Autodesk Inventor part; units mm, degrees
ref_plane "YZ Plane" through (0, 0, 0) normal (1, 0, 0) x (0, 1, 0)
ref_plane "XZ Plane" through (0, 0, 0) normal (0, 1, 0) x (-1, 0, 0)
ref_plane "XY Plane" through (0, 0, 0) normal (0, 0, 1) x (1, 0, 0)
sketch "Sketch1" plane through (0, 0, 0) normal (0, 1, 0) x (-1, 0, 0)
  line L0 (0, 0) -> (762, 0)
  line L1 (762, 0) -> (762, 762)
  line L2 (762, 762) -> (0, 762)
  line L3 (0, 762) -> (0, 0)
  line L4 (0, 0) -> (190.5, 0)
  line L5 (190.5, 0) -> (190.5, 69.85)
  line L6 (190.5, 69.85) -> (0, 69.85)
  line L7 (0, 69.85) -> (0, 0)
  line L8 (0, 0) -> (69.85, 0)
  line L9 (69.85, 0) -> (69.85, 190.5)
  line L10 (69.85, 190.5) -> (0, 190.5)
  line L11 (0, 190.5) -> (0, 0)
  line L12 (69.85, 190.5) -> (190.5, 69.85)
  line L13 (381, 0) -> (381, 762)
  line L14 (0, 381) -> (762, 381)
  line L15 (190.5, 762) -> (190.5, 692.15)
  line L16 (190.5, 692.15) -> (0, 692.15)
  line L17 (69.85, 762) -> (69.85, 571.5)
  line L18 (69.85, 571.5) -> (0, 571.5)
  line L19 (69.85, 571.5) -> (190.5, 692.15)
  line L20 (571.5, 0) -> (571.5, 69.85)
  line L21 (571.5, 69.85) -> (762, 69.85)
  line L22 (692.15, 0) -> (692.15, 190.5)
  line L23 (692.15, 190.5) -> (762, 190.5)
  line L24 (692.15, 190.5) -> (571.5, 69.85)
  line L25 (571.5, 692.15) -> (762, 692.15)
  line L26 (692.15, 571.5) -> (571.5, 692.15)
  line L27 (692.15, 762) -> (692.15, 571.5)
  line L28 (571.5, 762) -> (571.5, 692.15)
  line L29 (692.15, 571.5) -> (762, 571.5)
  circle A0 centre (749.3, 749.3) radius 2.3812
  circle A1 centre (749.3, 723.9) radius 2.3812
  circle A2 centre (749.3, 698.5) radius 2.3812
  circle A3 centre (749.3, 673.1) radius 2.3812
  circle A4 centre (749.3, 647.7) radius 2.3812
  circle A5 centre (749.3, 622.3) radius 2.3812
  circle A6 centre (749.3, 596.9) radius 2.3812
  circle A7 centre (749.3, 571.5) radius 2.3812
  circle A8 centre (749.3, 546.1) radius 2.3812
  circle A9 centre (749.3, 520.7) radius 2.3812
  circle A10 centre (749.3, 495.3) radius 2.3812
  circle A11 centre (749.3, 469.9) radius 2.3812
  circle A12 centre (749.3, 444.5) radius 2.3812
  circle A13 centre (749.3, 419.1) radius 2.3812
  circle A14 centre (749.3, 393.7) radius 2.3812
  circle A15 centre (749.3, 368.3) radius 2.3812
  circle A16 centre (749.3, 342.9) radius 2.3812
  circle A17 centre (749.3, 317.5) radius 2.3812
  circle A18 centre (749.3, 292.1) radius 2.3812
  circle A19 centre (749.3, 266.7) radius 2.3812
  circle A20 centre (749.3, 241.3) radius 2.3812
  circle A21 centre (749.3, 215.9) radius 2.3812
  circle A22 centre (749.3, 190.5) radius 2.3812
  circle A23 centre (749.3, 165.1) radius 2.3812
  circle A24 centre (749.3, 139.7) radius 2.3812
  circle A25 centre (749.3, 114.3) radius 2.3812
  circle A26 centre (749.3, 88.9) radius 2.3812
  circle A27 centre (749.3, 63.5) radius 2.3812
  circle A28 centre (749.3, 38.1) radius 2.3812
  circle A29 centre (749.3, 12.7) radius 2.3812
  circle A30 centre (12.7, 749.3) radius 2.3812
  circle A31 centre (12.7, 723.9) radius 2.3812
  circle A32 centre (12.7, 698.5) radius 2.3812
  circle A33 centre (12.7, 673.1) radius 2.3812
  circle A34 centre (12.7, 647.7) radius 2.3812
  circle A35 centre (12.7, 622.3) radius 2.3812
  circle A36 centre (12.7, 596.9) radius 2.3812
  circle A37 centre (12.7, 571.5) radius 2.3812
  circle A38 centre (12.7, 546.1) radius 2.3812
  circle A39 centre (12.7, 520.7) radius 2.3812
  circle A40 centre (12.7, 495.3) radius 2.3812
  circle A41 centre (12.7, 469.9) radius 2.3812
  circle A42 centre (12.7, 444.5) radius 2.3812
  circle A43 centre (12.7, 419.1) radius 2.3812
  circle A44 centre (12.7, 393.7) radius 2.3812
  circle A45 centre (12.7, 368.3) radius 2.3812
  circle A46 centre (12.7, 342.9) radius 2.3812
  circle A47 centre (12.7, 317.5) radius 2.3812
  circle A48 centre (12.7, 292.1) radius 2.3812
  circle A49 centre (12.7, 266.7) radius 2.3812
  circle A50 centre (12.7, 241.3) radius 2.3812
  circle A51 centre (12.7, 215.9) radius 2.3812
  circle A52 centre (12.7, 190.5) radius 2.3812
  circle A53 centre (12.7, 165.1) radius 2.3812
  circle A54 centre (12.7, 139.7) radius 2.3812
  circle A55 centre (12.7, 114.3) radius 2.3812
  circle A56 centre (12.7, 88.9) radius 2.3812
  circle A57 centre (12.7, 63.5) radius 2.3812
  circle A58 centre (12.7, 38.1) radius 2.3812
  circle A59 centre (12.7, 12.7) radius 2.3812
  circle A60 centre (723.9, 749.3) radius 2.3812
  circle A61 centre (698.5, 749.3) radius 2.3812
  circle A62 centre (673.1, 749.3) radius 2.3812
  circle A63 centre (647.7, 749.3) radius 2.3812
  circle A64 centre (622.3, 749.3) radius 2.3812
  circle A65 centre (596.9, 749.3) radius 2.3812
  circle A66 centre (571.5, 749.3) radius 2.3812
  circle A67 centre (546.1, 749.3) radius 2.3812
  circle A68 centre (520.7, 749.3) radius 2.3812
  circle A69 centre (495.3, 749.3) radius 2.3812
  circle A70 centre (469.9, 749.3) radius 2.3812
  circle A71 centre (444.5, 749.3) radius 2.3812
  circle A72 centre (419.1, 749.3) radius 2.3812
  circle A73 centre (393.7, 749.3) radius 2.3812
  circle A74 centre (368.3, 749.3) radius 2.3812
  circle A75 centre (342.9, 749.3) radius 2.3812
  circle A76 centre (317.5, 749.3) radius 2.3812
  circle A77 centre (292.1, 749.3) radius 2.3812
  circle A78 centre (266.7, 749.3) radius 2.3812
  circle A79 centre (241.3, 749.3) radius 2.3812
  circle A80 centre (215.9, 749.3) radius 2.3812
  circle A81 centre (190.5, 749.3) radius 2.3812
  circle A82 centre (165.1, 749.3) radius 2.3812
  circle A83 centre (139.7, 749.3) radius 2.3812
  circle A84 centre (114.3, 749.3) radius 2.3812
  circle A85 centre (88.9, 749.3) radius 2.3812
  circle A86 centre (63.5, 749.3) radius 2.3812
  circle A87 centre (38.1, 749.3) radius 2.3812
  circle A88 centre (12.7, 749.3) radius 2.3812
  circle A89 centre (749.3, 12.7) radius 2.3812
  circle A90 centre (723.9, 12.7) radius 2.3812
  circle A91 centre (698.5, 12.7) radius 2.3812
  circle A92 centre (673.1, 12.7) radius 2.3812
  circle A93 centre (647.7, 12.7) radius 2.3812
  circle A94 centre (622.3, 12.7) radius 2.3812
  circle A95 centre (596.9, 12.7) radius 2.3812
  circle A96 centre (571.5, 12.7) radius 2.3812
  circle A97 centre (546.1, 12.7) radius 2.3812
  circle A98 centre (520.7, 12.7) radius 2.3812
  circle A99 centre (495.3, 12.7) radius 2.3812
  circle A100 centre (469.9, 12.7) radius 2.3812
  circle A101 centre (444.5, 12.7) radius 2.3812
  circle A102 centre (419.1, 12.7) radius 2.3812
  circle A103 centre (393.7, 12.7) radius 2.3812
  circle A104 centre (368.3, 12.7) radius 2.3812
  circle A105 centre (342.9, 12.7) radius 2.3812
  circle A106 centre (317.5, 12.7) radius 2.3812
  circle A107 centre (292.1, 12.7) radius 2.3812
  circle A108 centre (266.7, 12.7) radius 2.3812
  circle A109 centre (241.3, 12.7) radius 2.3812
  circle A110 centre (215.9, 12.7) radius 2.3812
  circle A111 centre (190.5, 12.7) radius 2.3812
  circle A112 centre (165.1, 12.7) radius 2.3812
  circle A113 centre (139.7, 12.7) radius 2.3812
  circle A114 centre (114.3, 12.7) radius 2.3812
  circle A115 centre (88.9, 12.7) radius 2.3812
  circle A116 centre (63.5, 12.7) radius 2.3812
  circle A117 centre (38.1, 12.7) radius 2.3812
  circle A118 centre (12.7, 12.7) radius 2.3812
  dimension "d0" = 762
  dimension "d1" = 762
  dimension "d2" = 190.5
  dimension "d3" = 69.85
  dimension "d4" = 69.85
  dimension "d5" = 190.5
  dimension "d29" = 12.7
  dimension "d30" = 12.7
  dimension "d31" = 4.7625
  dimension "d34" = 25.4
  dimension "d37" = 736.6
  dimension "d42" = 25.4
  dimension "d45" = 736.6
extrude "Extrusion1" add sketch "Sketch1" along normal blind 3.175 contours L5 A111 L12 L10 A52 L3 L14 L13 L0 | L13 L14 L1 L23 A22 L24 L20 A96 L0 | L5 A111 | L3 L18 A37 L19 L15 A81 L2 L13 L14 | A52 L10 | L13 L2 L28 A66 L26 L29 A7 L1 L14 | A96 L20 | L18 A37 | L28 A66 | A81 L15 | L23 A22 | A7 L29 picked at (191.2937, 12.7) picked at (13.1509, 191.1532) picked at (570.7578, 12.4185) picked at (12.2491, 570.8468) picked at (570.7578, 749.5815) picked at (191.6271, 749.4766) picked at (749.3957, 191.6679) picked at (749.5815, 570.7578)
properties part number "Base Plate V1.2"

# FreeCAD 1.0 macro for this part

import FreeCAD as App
import Part
import Sketcher
Q = App.Units.Quantity

doc = App.newDocument("Part")
params = doc.addObject("Spreadsheet::Sheet", "Params")
for row, (alias, value) in enumerate([
    ("sketch1_diameter", "0.1875 in"),
    ("sketch1_width", "2.75 in"),
    ("pad1_length", "0.125 in"),
], start=1):
    params.set(f"A{row}", alias)
    params.set(f"B{row}", "=" + value)
    params.setAlias(f"B{row}", alias)

body = doc.addObject("PartDesign::Body", "Body")

sketch1 = body.newObject("Sketcher::SketchObject", "Sketch")
sketch1.AttachmentSupport = (doc.getObject("XZ_Plane"), [""])
sketch1.MapMode = "FlatFace"
sketch1.addGeometry([
    Part.LineSegment(App.Vector(-190.5, 0, 0), App.Vector(-571.5, 0, 0)),
    Part.LineSegment(App.Vector(-571.5, 0, 0), App.Vector(-571.5, 69.85, 0)),
    Part.LineSegment(App.Vector(-571.5, 69.85, 0), App.Vector(-692.15, 190.5, 0)),
    Part.LineSegment(App.Vector(-692.15, 190.5, 0), App.Vector(-762, 190.5, 0)),
    Part.LineSegment(App.Vector(-762, 190.5, 0), App.Vector(-762, 571.5, 0)),
    Part.LineSegment(App.Vector(-762, 571.5, 0), App.Vector(-692.15, 571.5, 0)),
    Part.LineSegment(App.Vector(-692.15, 571.5, 0), App.Vector(-571.5, 692.15, 0)),
    Part.LineSegment(App.Vector(-571.5, 692.15, 0), App.Vector(-571.5, 762, 0)),
    Part.LineSegment(App.Vector(-571.5, 762, 0), App.Vector(-190.5, 762, 0)),
    Part.LineSegment(App.Vector(-190.5, 762, 0), App.Vector(-190.5, 692.15, 0)),
    Part.LineSegment(App.Vector(-190.5, 692.15, 0), App.Vector(-69.85, 571.5, 0)),
    Part.LineSegment(App.Vector(-69.85, 571.5, 0), App.Vector(0, 571.5, 0)),
    Part.LineSegment(App.Vector(0, 571.5, 0), App.Vector(0, 190.5, 0)),
    Part.LineSegment(App.Vector(0, 190.5, 0), App.Vector(-69.85, 190.5, 0)),
    Part.LineSegment(App.Vector(-69.85, 190.5, 0), App.Vector(-190.5, 69.85, 0)),
    Part.LineSegment(App.Vector(-190.5, 69.85, 0), App.Vector(-190.5, 0, 0)),
    Part.Circle(App.Vector(-215.9, 12.7, 0), App.Vector(0, 0, 1), 2.3812),
    Part.Circle(App.Vector(-241.3, 12.7, 0), App.Vector(0, 0, 1), 2.3812),
    Part.Circle(App.Vector(-266.7, 12.7, 0), App.Vector(0, 0, 1), 2.3812),
    Part.Circle(App.Vector(-292.1, 12.7, 0), App.Vector(0, 0, 1), 2.3812),
    Part.Circle(App.Vector(-317.5, 12.7, 0), App.Vector(0, 0, 1), 2.3812),
    Part.Circle(App.Vector(-342.9, 12.7, 0), App.Vector(0, 0, 1), 2.3812),
    Part.Circle(App.Vector(-368.3, 12.7, 0), App.Vector(0, 0, 1), 2.3812),
    Part.Circle(App.Vector(-12.7, 215.9, 0), App.Vector(0, 0, 1), 2.3812),
    Part.Circle(App.Vector(-12.7, 241.3, 0), App.Vector(0, 0, 1), 2.3812),
    Part.Circle(App.Vector(-12.7, 266.7, 0), App.Vector(0, 0, 1), 2.3812),
    Part.Circle(App.Vector(-12.7, 292.1, 0), App.Vector(0, 0, 1), 2.3812),
    Part.Circle(App.Vector(-12.7, 317.5, 0), App.Vector(0, 0, 1), 2.3812),
    Part.Circle(App.Vector(-12.7, 342.9, 0), App.Vector(0, 0, 1), 2.3812),
    Part.Circle(App.Vector(-12.7, 368.3, 0), App.Vector(0, 0, 1), 2.3812),
    Part.Circle(App.Vector(-368.3, 749.3, 0), App.Vector(0, 0, 1), 2.3812),
    Part.Circle(App.Vector(-12.7, 393.7, 0), App.Vector(0, 0, 1), 2.3812),
    Part.Circle(App.Vector(-12.7, 419.1, 0), App.Vector(0, 0, 1), 2.3812),
    Part.Circle(App.Vector(-12.7, 444.5, 0), App.Vector(0, 0, 1), 2.3812),
    Part.Circle(App.Vector(-12.7, 469.9, 0), App.Vector(0, 0, 1), 2.3812),
    Part.Circle(App.Vector(-12.7, 495.3, 0), App.Vector(0, 0, 1), 2.3812),
    Part.Circle(App.Vector(-12.7, 520.7, 0), App.Vector(0, 0, 1), 2.3812),
    Part.Circle(App.Vector(-12.7, 546.1, 0), App.Vector(0, 0, 1), 2.3812),
    Part.Circle(App.Vector(-215.9, 749.3, 0), App.Vector(0, 0, 1), 2.3812),
    Part.Circle(App.Vector(-241.3, 749.3, 0), App.Vector(0, 0, 1), 2.3812),
    Part.Circle(App.Vector(-266.7, 749.3, 0), App.Vector(0, 0, 1), 2.3812),
    Part.Circle(App.Vector(-292.1, 749.3, 0), App.Vector(0, 0, 1), 2.3812),
    Part.Circle(App.Vector(-317.5, 749.3, 0), App.Vector(0, 0, 1), 2.3812),
    Part.Circle(App.Vector(-342.9, 749.3, 0), App.Vector(0, 0, 1), 2.3812),
    Part.Circle(App.Vector(-749.3, 368.3, 0), App.Vector(0, 0, 1), 2.3812),
    Part.Circle(App.Vector(-393.7, 12.7, 0), App.Vector(0, 0, 1), 2.3812),
    Part.Circle(App.Vector(-419.1, 12.7, 0), App.Vector(0, 0, 1), 2.3812),
    Part.Circle(App.Vector(-444.5, 12.7, 0), App.Vector(0, 0, 1), 2.3812),
    Part.Circle(App.Vector(-469.9, 12.7, 0), App.Vector(0, 0, 1), 2.3812),
    Part.Circle(App.Vector(-495.3, 12.7, 0), App.Vector(0, 0, 1), 2.3812),
    Part.Circle(App.Vector(-520.7, 12.7, 0), App.Vector(0, 0, 1), 2.3812),
    Part.Circle(App.Vector(-546.1, 12.7, 0), App.Vector(0, 0, 1), 2.3812),
    Part.Circle(App.Vector(-749.3, 215.9, 0), App.Vector(0, 0, 1), 2.3812),
    Part.Circle(App.Vector(-749.3, 241.3, 0), App.Vector(0, 0, 1), 2.3812),
    Part.Circle(App.Vector(-749.3, 266.7, 0), App.Vector(0, 0, 1), 2.3812),
    Part.Circle(App.Vector(-749.3, 292.1, 0), App.Vector(0, 0, 1), 2.3812),
    Part.Circle(App.Vector(-749.3, 317.5, 0), App.Vector(0, 0, 1), 2.3812),
    Part.Circle(App.Vector(-749.3, 342.9, 0), App.Vector(0, 0, 1), 2.3812),
    Part.Circle(App.Vector(-546.1, 749.3, 0), App.Vector(0, 0, 1), 2.3812),
    Part.Circle(App.Vector(-520.7, 749.3, 0), App.Vector(0, 0, 1), 2.3812),
    Part.Circle(App.Vector(-749.3, 393.7, 0), App.Vector(0, 0, 1), 2.3812),
    Part.Circle(App.Vector(-749.3, 419.1, 0), App.Vector(0, 0, 1), 2.3812),
    Part.Circle(App.Vector(-749.3, 444.5, 0), App.Vector(0, 0, 1), 2.3812),
    Part.Circle(App.Vector(-749.3, 469.9, 0), App.Vector(0, 0, 1), 2.3812),
    Part.Circle(App.Vector(-749.3, 495.3, 0), App.Vector(0, 0, 1), 2.3812),
    Part.Circle(App.Vector(-749.3, 520.7, 0), App.Vector(0, 0, 1), 2.3812),
    Part.Circle(App.Vector(-749.3, 546.1, 0), App.Vector(0, 0, 1), 2.3812),
    Part.Circle(App.Vector(-393.7, 749.3, 0), App.Vector(0, 0, 1), 2.3812),
    Part.Circle(App.Vector(-419.1, 749.3, 0), App.Vector(0, 0, 1), 2.3812),
    Part.Circle(App.Vector(-444.5, 749.3, 0), App.Vector(0, 0, 1), 2.3812),
    Part.Circle(App.Vector(-469.9, 749.3, 0), App.Vector(0, 0, 1), 2.3812),
    Part.Circle(App.Vector(-495.3, 749.3, 0), App.Vector(0, 0, 1), 2.3812),
], False)
sketch1.addConstraint([
    Sketcher.Constraint("Coincident", 0, 2, 1, 1),
    Sketcher.Constraint("Coincident", 1, 2, 2, 1),
    Sketcher.Constraint("Coincident", 2, 2, 3, 1),
    Sketcher.Constraint("Coincident", 3, 2, 4, 1),
    Sketcher.Constraint("Coincident", 4, 2, 5, 1),
    Sketcher.Constraint("Coincident", 5, 2, 6, 1),
    Sketcher.Constraint("Coincident", 6, 2, 7, 1),
    Sketcher.Constraint("Coincident", 7, 2, 8, 1),
    Sketcher.Constraint("Coincident", 8, 2, 9, 1),
    Sketcher.Constraint("Coincident", 9, 2, 10, 1),
    Sketcher.Constraint("Coincident", 10, 2, 11, 1),
    Sketcher.Constraint("Coincident", 11, 2, 12, 1),
    Sketcher.Constraint("Coincident", 12, 2, 13, 1),
    Sketcher.Constraint("Coincident", 13, 2, 14, 1),
    Sketcher.Constraint("Coincident", 14, 2, 15, 1),
    Sketcher.Constraint("Coincident", 15, 2, 0, 1),
    Sketcher.Constraint("Horizontal", 0),
    Sketcher.Constraint("Vertical", 1),
    Sketcher.Constraint("Horizontal", 3),
    Sketcher.Constraint("Vertical", 4),
    Sketcher.Constraint("Horizontal", 5),
    Sketcher.Constraint("Vertical", 7),
    Sketcher.Constraint("Horizontal", 8),
    Sketcher.Constraint("Vertical", 9),
    Sketcher.Constraint("Horizontal", 11),
    Sketcher.Constraint("Vertical", 12),
    Sketcher.Constraint("Horizontal", 13),
    Sketcher.Constraint("Vertical", 15),
    Sketcher.Constraint("Equal", 16, 17),
    Sketcher.Constraint("Equal", 17, 18),
    Sketcher.Constraint("Equal", 18, 19),
    Sketcher.Constraint("Equal", 19, 20),
    Sketcher.Constraint("Equal", 20, 21),
    Sketcher.Constraint("Equal", 21, 22),
    Sketcher.Constraint("Equal", 22, 23),
    Sketcher.Constraint("Equal", 23, 24),
    Sketcher.Constraint("Equal", 24, 25),
    Sketcher.Constraint("Equal", 25, 26),
    Sketcher.Constraint("Equal", 26, 27),
    Sketcher.Constraint("Equal", 27, 28),
    Sketcher.Constraint("Equal", 28, 29),
    Sketcher.Constraint("Equal", 29, 30),
    Sketcher.Constraint("Equal", 30, 31),
    Sketcher.Constraint("Equal", 31, 32),
    Sketcher.Constraint("Equal", 32, 33),
    Sketcher.Constraint("Equal", 33, 34),
    Sketcher.Constraint("Equal", 34, 35),
    Sketcher.Constraint("Equal", 35, 36),
    Sketcher.Constraint("Equal", 36, 37),
    Sketcher.Constraint("Equal", 37, 38),
    Sketcher.Constraint("Equal", 38, 39),
    Sketcher.Constraint("Equal", 39, 40),
    Sketcher.Constraint("Equal", 40, 41),
    Sketcher.Constraint("Equal", 41, 42),
    Sketcher.Constraint("Equal", 42, 43),
    Sketcher.Constraint("Equal", 43, 44),
    Sketcher.Constraint("Equal", 44, 45),
    Sketcher.Constraint("Equal", 45, 46),
    Sketcher.Constraint("Equal", 46, 47),
    Sketcher.Constraint("Equal", 47, 48),
    Sketcher.Constraint("Equal", 48, 49),
    Sketcher.Constraint("Equal", 49, 50),
    Sketcher.Constraint("Equal", 50, 51),
    Sketcher.Constraint("Equal", 51, 52),
    Sketcher.Constraint("Equal", 52, 53),
    Sketcher.Constraint("Equal", 53, 54),
    Sketcher.Constraint("Equal", 54, 55),
    Sketcher.Constraint("Equal", 55, 56),
    Sketcher.Constraint("Equal", 56, 57),
    Sketcher.Constraint("Equal", 57, 58),
    Sketcher.Constraint("Equal", 58, 59),
    Sketcher.Constraint("Equal", 59, 60),
    Sketcher.Constraint("Equal", 60, 61),
    Sketcher.Constraint("Equal", 61, 62),
    Sketcher.Constraint("Equal", 62, 63),
    Sketcher.Constraint("Equal", 63, 64),
    Sketcher.Constraint("Equal", 64, 65),
    Sketcher.Constraint("Equal", 65, 66),
    Sketcher.Constraint("Equal", 66, 67),
    Sketcher.Constraint("Equal", 67, 68),
    Sketcher.Constraint("Equal", 68, 69),
    Sketcher.Constraint("Equal", 69, 70),
    Sketcher.Constraint("Equal", 70, 71),
    Sketcher.Constraint("PointOnObject", 0, 2, -1),
    Sketcher.Constraint("PointOnObject", 11, 2, -2),
    Sketcher.Constraint("Perpendicular", 2, 6),
    Sketcher.Constraint("Perpendicular", 6, 10),
    Sketcher.Constraint("Perpendicular", 10, 14),
    Sketcher.Constraint("Horizontal", 16, 3, 17, 3),
    Sketcher.Constraint("Horizontal", 17, 3, 18, 3),
    Sketcher.Constraint("Horizontal", 18, 3, 19, 3),
    Sketcher.Constraint("Horizontal", 19, 3, 20, 3),
    Sketcher.Constraint("Horizontal", 20, 3, 21, 3),
    Sketcher.Constraint("Horizontal", 21, 3, 22, 3),
    Sketcher.Constraint("Horizontal", 30, 3, 38, 3),
    Sketcher.Constraint("Horizontal", 38, 3, 39, 3),
    Sketcher.Constraint("Horizontal", 39, 3, 40, 3),
    Sketcher.Constraint("Horizontal", 40, 3, 41, 3),
    Sketcher.Constraint("Horizontal", 41, 3, 42, 3),
    Sketcher.Constraint("Horizontal", 42, 3, 43, 3),
    Sketcher.Constraint("Horizontal", 29, 3, 44, 3),
    Sketcher.Constraint("Horizontal", 22, 3, 45, 3),
    Sketcher.Constraint("Horizontal", 45, 3, 46, 3),
    Sketcher.Constraint("Horizontal", 46, 3, 47, 3),
    Sketcher.Constraint("Horizontal", 47, 3, 48, 3),
    Sketcher.Constraint("Horizontal", 48, 3, 49, 3),
    Sketcher.Constraint("Horizontal", 49, 3, 50, 3),
    Sketcher.Constraint("Horizontal", 50, 3, 51, 3),
    Sketcher.Constraint("Horizontal", 23, 3, 52, 3),
    Sketcher.Constraint("Horizontal", 24, 3, 53, 3),
    Sketcher.Constraint("Horizontal", 25, 3, 54, 3),
    Sketcher.Constraint("Horizontal", 26, 3, 55, 3),
    Sketcher.Constraint("Horizontal", 27, 3, 56, 3),
    Sketcher.Constraint("Horizontal", 28, 3, 57, 3),
    Sketcher.Constraint("Horizontal", 43, 3, 58, 3),
    Sketcher.Constraint("Horizontal", 58, 3, 59, 3),
    Sketcher.Constraint("Horizontal", 31, 3, 60, 3),
    Sketcher.Constraint("Horizontal", 32, 3, 61, 3),
    Sketcher.Constraint("Horizontal", 33, 3, 62, 3),
    Sketcher.Constraint("Horizontal", 34, 3, 63, 3),
    Sketcher.Constraint("Horizontal", 35, 3, 64, 3),
    Sketcher.Constraint("Horizontal", 36, 3, 65, 3),
    Sketcher.Constraint("Horizontal", 37, 3, 66, 3),
    Sketcher.Constraint("Horizontal", 59, 3, 67, 3),
    Sketcher.Constraint("Horizontal", 67, 3, 68, 3),
    Sketcher.Constraint("Horizontal", 68, 3, 69, 3),
    Sketcher.Constraint("Horizontal", 69, 3, 70, 3),
    Sketcher.Constraint("Horizontal", 70, 3, 71, 3),
    Sketcher.Constraint("Horizontal", 6, 2, 9, 2),
    Sketcher.Constraint("Horizontal", 5, 2, 10, 2),
    Sketcher.Constraint("Horizontal", 3, 2, 12, 2),
    Sketcher.Constraint("Horizontal", 1, 2, 14, 2),
    Sketcher.Constraint("Vertical", 23, 3, 24, 3),
    Sketcher.Constraint("Vertical", 24, 3, 25, 3),
    Sketcher.Constraint("Vertical", 25, 3, 26, 3),
    Sketcher.Constraint("Vertical", 26, 3, 27, 3),
    Sketcher.Constraint("Vertical", 27, 3, 28, 3),
    Sketcher.Constraint("Vertical", 28, 3, 29, 3),
    Sketcher.Constraint("Vertical", 22, 3, 30, 3),
    Sketcher.Constraint("Vertical", 29, 3, 31, 3),
    Sketcher.Constraint("Vertical", 31, 3, 32, 3),
    Sketcher.Constraint("Vertical", 32, 3, 33, 3),
    Sketcher.Constraint("Vertical", 33, 3, 34, 3),
    Sketcher.Constraint("Vertical", 34, 3, 35, 3),
    Sketcher.Constraint("Vertical", 35, 3, 36, 3),
    Sketcher.Constraint("Vertical", 36, 3, 37, 3),
    Sketcher.Constraint("Vertical", 16, 3, 38, 3),
    Sketcher.Constraint("Vertical", 17, 3, 39, 3),
    Sketcher.Constraint("Vertical", 18, 3, 40, 3),
    Sketcher.Constraint("Vertical", 19, 3, 41, 3),
    Sketcher.Constraint("Vertical", 20, 3, 42, 3),
    Sketcher.Constraint("Vertical", 21, 3, 43, 3),
    Sketcher.Constraint("Vertical", 44, 3, 52, 3),
    Sketcher.Constraint("Vertical", 52, 3, 53, 3),
    Sketcher.Constraint("Vertical", 53, 3, 54, 3),
    Sketcher.Constraint("Vertical", 54, 3, 55, 3),
    Sketcher.Constraint("Vertical", 55, 3, 56, 3),
    Sketcher.Constraint("Vertical", 56, 3, 57, 3),
    Sketcher.Constraint("Vertical", 51, 3, 58, 3),
    Sketcher.Constraint("Vertical", 50, 3, 59, 3),
    Sketcher.Constraint("Vertical", 57, 3, 60, 3),
    Sketcher.Constraint("Vertical", 60, 3, 61, 3),
    Sketcher.Constraint("Vertical", 61, 3, 62, 3),
    Sketcher.Constraint("Vertical", 62, 3, 63, 3),
    Sketcher.Constraint("Vertical", 63, 3, 64, 3),
    Sketcher.Constraint("Vertical", 64, 3, 65, 3),
    Sketcher.Constraint("Vertical", 65, 3, 66, 3),
    Sketcher.Constraint("Vertical", 45, 3, 67, 3),
    Sketcher.Constraint("Vertical", 46, 3, 68, 3),
    Sketcher.Constraint("Vertical", 47, 3, 69, 3),
    Sketcher.Constraint("Vertical", 48, 3, 70, 3),
    Sketcher.Constraint("Vertical", 49, 3, 71, 3),
    Sketcher.Constraint("Vertical", 2, 2, 5, 2),
    Sketcher.Constraint("Vertical", 1, 2, 6, 2),
    Sketcher.Constraint("Vertical", 10, 2, 13, 2),
    Sketcher.Constraint("Vertical", 9, 2, 14, 2),
    Sketcher.Constraint("Equal", 5, 11),
    Sketcher.Constraint("Equal", 13, 1),
    Sketcher.Constraint("Equal", 8, 4),
    Sketcher.Constraint("Equal", 1, 7),
    Sketcher.Constraint("Diameter", 16, Q("0.1875 in")),
    Sketcher.Constraint("DistanceX", 3, 2, -1, 1, Q("30 in")),
    Sketcher.Constraint("DistanceX", 3, 2, 3, 1, Q("2.75 in")),
    Sketcher.Constraint("DistanceY", -1, 1, 16, 3, Q("0.5 in")),
    Sketcher.Constraint("DistanceX", 23, 3, -1, 1, Q("0.5 in")),
    Sketcher.Constraint("DistanceY", -1, 1, 2, 2, Q("7.5 in")),
    Sketcher.Constraint("DistanceX", 16, 3, -1, 1, Q("8.5 in")),
    Sketcher.Constraint("DistanceX", 17, 3, -1, 1, Q("9.5 in")),
    Sketcher.Constraint("DistanceX", 18, 3, -1, 1, Q("10.5 in")),
    Sketcher.Constraint("DistanceX", 19, 3, -1, 1, Q("11.5 in")),
    Sketcher.Constraint("DistanceX", 20, 3, -1, 1, Q("12.5 in")),
    Sketcher.Constraint("DistanceX", 21, 3, -1, 1, Q("13.5 in")),
    Sketcher.Constraint("DistanceX", 22, 3, -1, 1, Q("14.5 in")),
    Sketcher.Constraint("DistanceY", -1, 1, 23, 3, Q("8.5 in")),
    Sketcher.Constraint("DistanceY", -1, 1, 24, 3, Q("9.5 in")),
    Sketcher.Constraint("DistanceY", -1, 1, 25, 3, Q("10.5 in")),
    Sketcher.Constraint("DistanceY", -1, 1, 26, 3, Q("11.5 in")),
    Sketcher.Constraint("DistanceY", -1, 1, 27, 3, Q("12.5 in")),
    Sketcher.Constraint("DistanceY", -1, 1, 28, 3, Q("13.5 in")),
    Sketcher.Constraint("DistanceY", -1, 1, 29, 3, Q("14.5 in")),
    Sketcher.Constraint("DistanceY", -1, 1, 30, 3, Q("29.5 in")),
    Sketcher.Constraint("DistanceY", -1, 1, 31, 3, Q("15.5 in")),
    Sketcher.Constraint("DistanceY", -1, 1, 32, 3, Q("16.5 in")),
    Sketcher.Constraint("DistanceY", -1, 1, 33, 3, Q("17.5 in")),
    Sketcher.Constraint("DistanceY", -1, 1, 34, 3, Q("18.5 in")),
    Sketcher.Constraint("DistanceY", -1, 1, 35, 3, Q("19.5 in")),
    Sketcher.Constraint("DistanceY", -1, 1, 36, 3, Q("20.5 in")),
    Sketcher.Constraint("DistanceY", -1, 1, 37, 3, Q("21.5 in")),
    Sketcher.Constraint("DistanceX", 44, 3, -1, 1, Q("29.5 in")),
    Sketcher.Constraint("DistanceX", 45, 3, -1, 1, Q("15.5 in")),
    Sketcher.Constraint("DistanceX", 46, 3, -1, 1, Q("16.5 in")),
    Sketcher.Constraint("DistanceX", 47, 3, -1, 1, Q("17.5 in")),
    Sketcher.Constraint("DistanceX", 48, 3, -1, 1, Q("18.5 in")),
    Sketcher.Constraint("DistanceX", 49, 3, -1, 1, Q("19.5 in")),
    Sketcher.Constraint("DistanceX", 50, 3, -1, 1, Q("20.5 in")),
    Sketcher.Constraint("DistanceX", 51, 3, -1, 1, Q("21.5 in")),
])
sketch1.setExpression("Constraints[180]", "Params.sketch1_diameter")
sketch1.setExpression("Constraints[182]", "Params.sketch1_width")
pad1 = body.newObject("PartDesign::Pad", "Pad")
pad1.Profile = sketch1
pad1.setExpression("Length", "Params.pad1_length")
pad1.Reversed = True

doc.recompute()
